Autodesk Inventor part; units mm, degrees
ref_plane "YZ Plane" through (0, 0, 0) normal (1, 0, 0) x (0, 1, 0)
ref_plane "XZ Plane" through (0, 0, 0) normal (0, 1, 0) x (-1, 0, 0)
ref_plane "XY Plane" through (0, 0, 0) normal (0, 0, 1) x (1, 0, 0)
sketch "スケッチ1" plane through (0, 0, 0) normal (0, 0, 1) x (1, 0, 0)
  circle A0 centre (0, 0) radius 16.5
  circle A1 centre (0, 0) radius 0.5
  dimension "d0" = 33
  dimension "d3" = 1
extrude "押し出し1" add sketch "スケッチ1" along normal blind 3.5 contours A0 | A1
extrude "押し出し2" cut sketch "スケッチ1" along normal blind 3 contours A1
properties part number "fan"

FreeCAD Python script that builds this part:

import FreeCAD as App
import Part
import Sketcher

V = App.Vector

doc = App.newDocument("Part")
body = doc.addObject("PartDesign::Body", "Body")

sketch1 = body.newObject("Sketcher::SketchObject", "Sketch")
sketch1.AttachmentSupport = (doc.getObject("XY_Plane"), [""])
sketch1.MapMode = "FlatFace"
sketch1.addGeometry(Part.Circle(V(0, 0, 0), V(0, 0, 1), 16), False)
sketch1.addConstraint([
    Sketcher.Constraint("Coincident", 0, 3, -1, 1),
    Sketcher.Constraint("Diameter", 0, 33.0),
])
pad1 = body.newObject("PartDesign::Pad", "Pad")
pad1.Profile = sketch1
pad1.Length = 3.5

sketch2 = body.newObject("Sketcher::SketchObject", "Sketch001")
sketch2.AttachmentSupport = (doc.getObject("XY_Plane"), [""])
sketch2.MapMode = "FlatFace"
sketch2.addGeometry(Part.Circle(V(0, 0, 0), V(0, 0, 1), 0.5), False)
sketch2.addConstraint([
    Sketcher.Constraint("Coincident", 0, 3, -1, 1),
    Sketcher.Constraint("Diameter", 0, 1.0),
])
pocket1 = body.newObject("PartDesign::Pocket", "Pocket")
pocket1.Profile = sketch2
pocket1.Length = 3
pocket1.Reversed = True

doc.recompute()
